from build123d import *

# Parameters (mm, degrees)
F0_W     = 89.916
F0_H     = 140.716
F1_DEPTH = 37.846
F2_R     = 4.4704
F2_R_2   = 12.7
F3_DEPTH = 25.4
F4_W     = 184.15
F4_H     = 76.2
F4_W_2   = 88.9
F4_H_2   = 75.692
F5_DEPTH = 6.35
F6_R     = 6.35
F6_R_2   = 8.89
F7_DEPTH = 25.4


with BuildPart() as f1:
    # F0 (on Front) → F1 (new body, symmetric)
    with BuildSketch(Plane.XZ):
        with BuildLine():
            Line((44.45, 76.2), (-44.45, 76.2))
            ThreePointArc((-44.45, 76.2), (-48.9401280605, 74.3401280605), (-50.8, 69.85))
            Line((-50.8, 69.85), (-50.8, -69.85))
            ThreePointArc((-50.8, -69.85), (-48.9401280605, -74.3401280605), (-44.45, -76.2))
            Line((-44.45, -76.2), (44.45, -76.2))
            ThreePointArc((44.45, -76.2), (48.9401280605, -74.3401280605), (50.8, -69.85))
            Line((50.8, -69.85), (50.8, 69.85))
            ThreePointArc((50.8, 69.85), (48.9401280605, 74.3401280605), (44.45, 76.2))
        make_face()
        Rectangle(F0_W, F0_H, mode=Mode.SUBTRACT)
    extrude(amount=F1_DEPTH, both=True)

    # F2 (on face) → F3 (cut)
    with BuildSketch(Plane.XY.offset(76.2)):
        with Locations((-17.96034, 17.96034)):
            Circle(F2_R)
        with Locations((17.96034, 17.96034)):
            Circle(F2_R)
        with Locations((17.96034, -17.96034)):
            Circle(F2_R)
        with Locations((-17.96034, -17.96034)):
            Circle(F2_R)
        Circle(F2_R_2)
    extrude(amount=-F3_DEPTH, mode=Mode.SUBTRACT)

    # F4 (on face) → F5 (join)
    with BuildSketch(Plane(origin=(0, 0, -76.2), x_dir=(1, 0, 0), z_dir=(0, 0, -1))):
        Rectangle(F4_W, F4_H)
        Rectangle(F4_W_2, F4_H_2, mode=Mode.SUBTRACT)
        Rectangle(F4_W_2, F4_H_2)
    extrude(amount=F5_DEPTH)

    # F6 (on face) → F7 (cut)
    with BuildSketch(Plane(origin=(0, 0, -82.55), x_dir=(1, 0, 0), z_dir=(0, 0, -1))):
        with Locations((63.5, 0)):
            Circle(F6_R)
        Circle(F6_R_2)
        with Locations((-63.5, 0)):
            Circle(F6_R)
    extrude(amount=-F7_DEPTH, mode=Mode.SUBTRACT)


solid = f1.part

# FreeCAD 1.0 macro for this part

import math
import FreeCAD as App
import Part
import Sketcher
from FreeCAD import Vector
Q = App.Units.Quantity


def add_polygon(sketch, points):
    """Adds a closed chain of lines whose ends are joined by coincident constraints."""
    first, n = sketch.GeometryCount, len(points)
    for a, b in zip(points, points[1:] + points[:1]):
        sketch.addGeometry(Part.LineSegment(App.Vector(*a, 0), App.Vector(*b, 0)), False)
    for i in range(n):
        sketch.addConstraint(Sketcher.Constraint("Coincident", first + i, 2, first + (i + 1) % n, 1))

doc = App.newDocument("Part")
params = doc.addObject("Spreadsheet::Sheet", "Params")
for row, (alias, value) in enumerate([
    ("sketch1_radius", "0.25 in"),
    ("sketch1_width", "3.5 in"),
    ("sketch1_height", "5.5 in"),
    ("sketch1_width2", "3.54 in"),
    ("sketch1_height2", "5.54 in"),
    ("pad1_length", "2.98 in"),
    ("sketch2_diameter", "1 in"),
    ("sketch2_diameter2", "0.352 in"),
    ("pocket1_length", "1 in"),
    ("sketch3_height", "3 in"),
    ("sketch3_width", "7.25 in"),
    ("pad2_length", "0.25 in"),
    ("sketch4_diameter", "0.5 in"),
    ("sketch4_diameter2", "0.7 in"),
    ("pocket2_length", "1 in"),
], start=1):
    params.set(f"A{row}", alias)
    params.set(f"B{row}", "=" + value)
    params.setAlias(f"B{row}", alias)

body = doc.addObject("PartDesign::Body", "Body")

# Sketch on XZ plane
sketch1 = body.newObject("Sketcher::SketchObject", "Sketch")
sketch1.AttachmentSupport = (doc.getObject("XZ_Plane"), [""])
sketch1.MapMode = "FlatFace"
sketch1.addGeometry(Part.LineSegment(Vector(44, 76, 0), Vector(-44, 76, 0)), False)  # 0
sketch1.addGeometry(Part.ArcOfCircle(Part.Circle(Vector(-44, 70, 0), Vector(0, 0, 1), 6), math.radians(90), math.radians(180)), False)  # 1
sketch1.addGeometry(Part.LineSegment(Vector(-51, 70, 0), Vector(-51, -70, 0)), False)  # 2
sketch1.addGeometry(Part.ArcOfCircle(Part.Circle(Vector(-44, -70, 0), Vector(0, 0, 1), 6), math.radians(180), math.radians(270)), False)  # 3
sketch1.addGeometry(Part.LineSegment(Vector(-44, -76, 0), Vector(44, -76, 0)), False)  # 4
sketch1.addGeometry(Part.ArcOfCircle(Part.Circle(Vector(44, -70, 0), Vector(0, 0, 1), 6), math.radians(-90), math.radians(0)), False)  # 5
sketch1.addGeometry(Part.LineSegment(Vector(51, -70, 0), Vector(51, 70, 0)), False)  # 6
sketch1.addGeometry(Part.ArcOfCircle(Part.Circle(Vector(44, 70, 0), Vector(0, 0, 1), 6), math.radians(0), math.radians(90)), False)  # 7
add_polygon(sketch1, [(45, -70), (-45, -70), (-45, 70), (45, 70)])  # lines 8-11
sketch1.addConstraint([
    Sketcher.Constraint("Tangent", 0, 2, 1, 1),
    Sketcher.Constraint("Tangent", 1, 2, 2, 1),
    Sketcher.Constraint("Tangent", 2, 2, 3, 1),
    Sketcher.Constraint("Tangent", 3, 2, 4, 1),
    Sketcher.Constraint("Tangent", 4, 2, 5, 1),
    Sketcher.Constraint("Tangent", 5, 2, 6, 1),
    Sketcher.Constraint("Tangent", 6, 2, 7, 1),
    Sketcher.Constraint("Tangent", 7, 2, 0, 1),
    Sketcher.Constraint("Horizontal", 0),
    Sketcher.Constraint("Vertical", 2),
    Sketcher.Constraint("Horizontal", 4),
    Sketcher.Constraint("Vertical", 6),
    Sketcher.Constraint("Horizontal", 8),
    Sketcher.Constraint("Vertical", 9),
    Sketcher.Constraint("Horizontal", 10),
    Sketcher.Constraint("Vertical", 11),
    Sketcher.Constraint("Equal", 1, 3),
    Sketcher.Constraint("Equal", 3, 5),
    Sketcher.Constraint("Equal", 5, 7),
    Sketcher.Constraint("Symmetric", 1, 3, 5, 3, -1, 1),
    Sketcher.Constraint("Symmetric", 8, 2, 10, 2, -1, 1),
    Sketcher.Constraint("Radius", 1, Q("0.25 in")),
    Sketcher.Constraint("DistanceX", 0, 2, 0, 1, Q("3.5 in")),
    Sketcher.Constraint("DistanceY", 2, 2, 2, 1, Q("5.5 in")),
    Sketcher.Constraint("DistanceX", 8, 2, 8, 1, Q("3.54 in")),
    Sketcher.Constraint("DistanceY", 9, 1, 9, 2, Q("5.54 in")),
])
sketch1.setExpression("Constraints[25]", "Params.sketch1_radius")
sketch1.setExpression("Constraints[26]", "Params.sketch1_width")
sketch1.setExpression("Constraints[27]", "Params.sketch1_height")
sketch1.setExpression("Constraints[28]", "Params.sketch1_width2")
sketch1.setExpression("Constraints[29]", "Params.sketch1_height2")
pad1 = body.newObject("PartDesign::Pad", "Pad")
pad1.Profile = sketch1
pad1.setExpression("Length", "Params.pad1_length")
pad1.Midplane = True

# Sketch on XY plane
sketch2 = body.newObject("Sketcher::SketchObject", "Sketch001")
sketch2.AttachmentSupport = (doc.getObject("XY_Plane"), [""])
sketch2.MapMode = "FlatFace"
sketch2.AttachmentOffset = App.Placement(Vector(0, 0, 3 * 25.4), App.Rotation())
sketch2.addGeometry([
    Part.Circle(Vector(-18, 18, 0), Vector(0, 0, 1), 4.5),  # 0
    Part.Circle(Vector(18, 18, 0), Vector(0, 0, 1), 4.5),  # 1
    Part.Circle(Vector(18, -18, 0), Vector(0, 0, 1), 4.5),  # 2
    Part.Circle(Vector(-18, -18, 0), Vector(0, 0, 1), 4.5),  # 3
    Part.Circle(Vector(0, 0, 0), Vector(0, 0, 1), 12.7),  # 4
], False)
sketch2.addConstraint([
    Sketcher.Constraint("Coincident", 4, 3, -1, 1),
    Sketcher.Constraint("Equal", 0, 1),
    Sketcher.Constraint("Equal", 1, 2),
    Sketcher.Constraint("Equal", 2, 3),
    Sketcher.Constraint("Symmetric", 0, 3, 2, 3, -1, 1),
    Sketcher.Constraint("Symmetric", 1, 3, 3, 3, -1, 1),
    Sketcher.Constraint("Symmetric", 0, 3, 1, 3, -2),
    Sketcher.Constraint("Diameter", 4, Q("1 in")),
    Sketcher.Constraint("Diameter", 0, Q("0.352 in")),
    Sketcher.Constraint("DistanceX", 0, 3, -1, 1, Q("0.7071 in")),
    Sketcher.Constraint("DistanceY", -1, 1, 0, 3, Q("0.7071 in")),
])
sketch2.setExpression("Constraints[7]", "Params.sketch2_diameter")
sketch2.setExpression("Constraints[8]", "Params.sketch2_diameter2")
pocket1 = body.newObject("PartDesign::Pocket", "Pocket")
pocket1.Profile = sketch2
pocket1.setExpression("Length", "Params.pocket1_length")

# Sketch on XY plane
sketch3 = body.newObject("Sketcher::SketchObject", "Sketch002")
sketch3.AttachmentSupport = (doc.getObject("XY_Plane"), [""])
sketch3.MapMode = "FlatFace"
sketch3.AttachmentOffset = App.Placement(Vector(0, 0, -3 * 25.4), App.Rotation())
add_polygon(sketch3, [(-92, -38), (-92, 38), (92, 38), (92, -38)])  # lines 0-3
sketch3.addConstraint([
    Sketcher.Constraint("Vertical", 0),
    Sketcher.Constraint("Horizontal", 1),
    Sketcher.Constraint("Vertical", 2),
    Sketcher.Constraint("Horizontal", 3),
    Sketcher.Constraint("Symmetric", 0, 2, 2, 2, -1, 1),
    Sketcher.Constraint("DistanceY", 0, 1, 0, 2, Q("3 in")),
    Sketcher.Constraint("DistanceX", 1, 1, 1, 2, Q("7.25 in")),
])
sketch3.setExpression("Constraints[9]", "Params.sketch3_height")
sketch3.setExpression("Constraints[10]", "Params.sketch3_width")
pad2 = body.newObject("PartDesign::Pad", "Pad001")
pad2.Profile = sketch3
pad2.setExpression("Length", "Params.pad2_length")
pad2.Reversed = True

# Sketch on XY plane
sketch4 = body.newObject("Sketcher::SketchObject", "Sketch003")
sketch4.AttachmentSupport = (doc.getObject("XY_Plane"), [""])
sketch4.MapMode = "FlatFace"
sketch4.AttachmentOffset = App.Placement(Vector(0, 0, -3.25 * 25.4), App.Rotation())
sketch4.addGeometry([
    Part.Circle(Vector(64, 0, 0), Vector(0, 0, 1), 6),
    Part.Circle(Vector(0, 0, 0), Vector(0, 0, 1), 9),
    Part.Circle(Vector(-64, 0, 0), Vector(0, 0, 1), 6),
], False)
sketch4.addConstraint([
    Sketcher.Constraint("Coincident", 1, 3, -1, 1),
    Sketcher.Constraint("Equal", 0, 2),
    Sketcher.Constraint("Symmetric", 0, 3, 2, 3, -1, 1),
    Sketcher.Constraint("PointOnObject", 0, 3, -1),
    Sketcher.Constraint("Diameter", 0, Q("0.5 in")),
    Sketcher.Constraint("Diameter", 1, Q("0.7 in")),
    Sketcher.Constraint("DistanceX", 2, 3, 0, 3, Q("5 in")),
])
sketch4.setExpression("Constraints[4]", "Params.sketch4_diameter")
sketch4.setExpression("Constraints[5]", "Params.sketch4_diameter2")
pocket2 = body.newObject("PartDesign::Pocket", "Pocket001")
pocket2.Profile = sketch4
pocket2.setExpression("Length", "Params.pocket2_length")
pocket2.Reversed = True

doc.recompute()
